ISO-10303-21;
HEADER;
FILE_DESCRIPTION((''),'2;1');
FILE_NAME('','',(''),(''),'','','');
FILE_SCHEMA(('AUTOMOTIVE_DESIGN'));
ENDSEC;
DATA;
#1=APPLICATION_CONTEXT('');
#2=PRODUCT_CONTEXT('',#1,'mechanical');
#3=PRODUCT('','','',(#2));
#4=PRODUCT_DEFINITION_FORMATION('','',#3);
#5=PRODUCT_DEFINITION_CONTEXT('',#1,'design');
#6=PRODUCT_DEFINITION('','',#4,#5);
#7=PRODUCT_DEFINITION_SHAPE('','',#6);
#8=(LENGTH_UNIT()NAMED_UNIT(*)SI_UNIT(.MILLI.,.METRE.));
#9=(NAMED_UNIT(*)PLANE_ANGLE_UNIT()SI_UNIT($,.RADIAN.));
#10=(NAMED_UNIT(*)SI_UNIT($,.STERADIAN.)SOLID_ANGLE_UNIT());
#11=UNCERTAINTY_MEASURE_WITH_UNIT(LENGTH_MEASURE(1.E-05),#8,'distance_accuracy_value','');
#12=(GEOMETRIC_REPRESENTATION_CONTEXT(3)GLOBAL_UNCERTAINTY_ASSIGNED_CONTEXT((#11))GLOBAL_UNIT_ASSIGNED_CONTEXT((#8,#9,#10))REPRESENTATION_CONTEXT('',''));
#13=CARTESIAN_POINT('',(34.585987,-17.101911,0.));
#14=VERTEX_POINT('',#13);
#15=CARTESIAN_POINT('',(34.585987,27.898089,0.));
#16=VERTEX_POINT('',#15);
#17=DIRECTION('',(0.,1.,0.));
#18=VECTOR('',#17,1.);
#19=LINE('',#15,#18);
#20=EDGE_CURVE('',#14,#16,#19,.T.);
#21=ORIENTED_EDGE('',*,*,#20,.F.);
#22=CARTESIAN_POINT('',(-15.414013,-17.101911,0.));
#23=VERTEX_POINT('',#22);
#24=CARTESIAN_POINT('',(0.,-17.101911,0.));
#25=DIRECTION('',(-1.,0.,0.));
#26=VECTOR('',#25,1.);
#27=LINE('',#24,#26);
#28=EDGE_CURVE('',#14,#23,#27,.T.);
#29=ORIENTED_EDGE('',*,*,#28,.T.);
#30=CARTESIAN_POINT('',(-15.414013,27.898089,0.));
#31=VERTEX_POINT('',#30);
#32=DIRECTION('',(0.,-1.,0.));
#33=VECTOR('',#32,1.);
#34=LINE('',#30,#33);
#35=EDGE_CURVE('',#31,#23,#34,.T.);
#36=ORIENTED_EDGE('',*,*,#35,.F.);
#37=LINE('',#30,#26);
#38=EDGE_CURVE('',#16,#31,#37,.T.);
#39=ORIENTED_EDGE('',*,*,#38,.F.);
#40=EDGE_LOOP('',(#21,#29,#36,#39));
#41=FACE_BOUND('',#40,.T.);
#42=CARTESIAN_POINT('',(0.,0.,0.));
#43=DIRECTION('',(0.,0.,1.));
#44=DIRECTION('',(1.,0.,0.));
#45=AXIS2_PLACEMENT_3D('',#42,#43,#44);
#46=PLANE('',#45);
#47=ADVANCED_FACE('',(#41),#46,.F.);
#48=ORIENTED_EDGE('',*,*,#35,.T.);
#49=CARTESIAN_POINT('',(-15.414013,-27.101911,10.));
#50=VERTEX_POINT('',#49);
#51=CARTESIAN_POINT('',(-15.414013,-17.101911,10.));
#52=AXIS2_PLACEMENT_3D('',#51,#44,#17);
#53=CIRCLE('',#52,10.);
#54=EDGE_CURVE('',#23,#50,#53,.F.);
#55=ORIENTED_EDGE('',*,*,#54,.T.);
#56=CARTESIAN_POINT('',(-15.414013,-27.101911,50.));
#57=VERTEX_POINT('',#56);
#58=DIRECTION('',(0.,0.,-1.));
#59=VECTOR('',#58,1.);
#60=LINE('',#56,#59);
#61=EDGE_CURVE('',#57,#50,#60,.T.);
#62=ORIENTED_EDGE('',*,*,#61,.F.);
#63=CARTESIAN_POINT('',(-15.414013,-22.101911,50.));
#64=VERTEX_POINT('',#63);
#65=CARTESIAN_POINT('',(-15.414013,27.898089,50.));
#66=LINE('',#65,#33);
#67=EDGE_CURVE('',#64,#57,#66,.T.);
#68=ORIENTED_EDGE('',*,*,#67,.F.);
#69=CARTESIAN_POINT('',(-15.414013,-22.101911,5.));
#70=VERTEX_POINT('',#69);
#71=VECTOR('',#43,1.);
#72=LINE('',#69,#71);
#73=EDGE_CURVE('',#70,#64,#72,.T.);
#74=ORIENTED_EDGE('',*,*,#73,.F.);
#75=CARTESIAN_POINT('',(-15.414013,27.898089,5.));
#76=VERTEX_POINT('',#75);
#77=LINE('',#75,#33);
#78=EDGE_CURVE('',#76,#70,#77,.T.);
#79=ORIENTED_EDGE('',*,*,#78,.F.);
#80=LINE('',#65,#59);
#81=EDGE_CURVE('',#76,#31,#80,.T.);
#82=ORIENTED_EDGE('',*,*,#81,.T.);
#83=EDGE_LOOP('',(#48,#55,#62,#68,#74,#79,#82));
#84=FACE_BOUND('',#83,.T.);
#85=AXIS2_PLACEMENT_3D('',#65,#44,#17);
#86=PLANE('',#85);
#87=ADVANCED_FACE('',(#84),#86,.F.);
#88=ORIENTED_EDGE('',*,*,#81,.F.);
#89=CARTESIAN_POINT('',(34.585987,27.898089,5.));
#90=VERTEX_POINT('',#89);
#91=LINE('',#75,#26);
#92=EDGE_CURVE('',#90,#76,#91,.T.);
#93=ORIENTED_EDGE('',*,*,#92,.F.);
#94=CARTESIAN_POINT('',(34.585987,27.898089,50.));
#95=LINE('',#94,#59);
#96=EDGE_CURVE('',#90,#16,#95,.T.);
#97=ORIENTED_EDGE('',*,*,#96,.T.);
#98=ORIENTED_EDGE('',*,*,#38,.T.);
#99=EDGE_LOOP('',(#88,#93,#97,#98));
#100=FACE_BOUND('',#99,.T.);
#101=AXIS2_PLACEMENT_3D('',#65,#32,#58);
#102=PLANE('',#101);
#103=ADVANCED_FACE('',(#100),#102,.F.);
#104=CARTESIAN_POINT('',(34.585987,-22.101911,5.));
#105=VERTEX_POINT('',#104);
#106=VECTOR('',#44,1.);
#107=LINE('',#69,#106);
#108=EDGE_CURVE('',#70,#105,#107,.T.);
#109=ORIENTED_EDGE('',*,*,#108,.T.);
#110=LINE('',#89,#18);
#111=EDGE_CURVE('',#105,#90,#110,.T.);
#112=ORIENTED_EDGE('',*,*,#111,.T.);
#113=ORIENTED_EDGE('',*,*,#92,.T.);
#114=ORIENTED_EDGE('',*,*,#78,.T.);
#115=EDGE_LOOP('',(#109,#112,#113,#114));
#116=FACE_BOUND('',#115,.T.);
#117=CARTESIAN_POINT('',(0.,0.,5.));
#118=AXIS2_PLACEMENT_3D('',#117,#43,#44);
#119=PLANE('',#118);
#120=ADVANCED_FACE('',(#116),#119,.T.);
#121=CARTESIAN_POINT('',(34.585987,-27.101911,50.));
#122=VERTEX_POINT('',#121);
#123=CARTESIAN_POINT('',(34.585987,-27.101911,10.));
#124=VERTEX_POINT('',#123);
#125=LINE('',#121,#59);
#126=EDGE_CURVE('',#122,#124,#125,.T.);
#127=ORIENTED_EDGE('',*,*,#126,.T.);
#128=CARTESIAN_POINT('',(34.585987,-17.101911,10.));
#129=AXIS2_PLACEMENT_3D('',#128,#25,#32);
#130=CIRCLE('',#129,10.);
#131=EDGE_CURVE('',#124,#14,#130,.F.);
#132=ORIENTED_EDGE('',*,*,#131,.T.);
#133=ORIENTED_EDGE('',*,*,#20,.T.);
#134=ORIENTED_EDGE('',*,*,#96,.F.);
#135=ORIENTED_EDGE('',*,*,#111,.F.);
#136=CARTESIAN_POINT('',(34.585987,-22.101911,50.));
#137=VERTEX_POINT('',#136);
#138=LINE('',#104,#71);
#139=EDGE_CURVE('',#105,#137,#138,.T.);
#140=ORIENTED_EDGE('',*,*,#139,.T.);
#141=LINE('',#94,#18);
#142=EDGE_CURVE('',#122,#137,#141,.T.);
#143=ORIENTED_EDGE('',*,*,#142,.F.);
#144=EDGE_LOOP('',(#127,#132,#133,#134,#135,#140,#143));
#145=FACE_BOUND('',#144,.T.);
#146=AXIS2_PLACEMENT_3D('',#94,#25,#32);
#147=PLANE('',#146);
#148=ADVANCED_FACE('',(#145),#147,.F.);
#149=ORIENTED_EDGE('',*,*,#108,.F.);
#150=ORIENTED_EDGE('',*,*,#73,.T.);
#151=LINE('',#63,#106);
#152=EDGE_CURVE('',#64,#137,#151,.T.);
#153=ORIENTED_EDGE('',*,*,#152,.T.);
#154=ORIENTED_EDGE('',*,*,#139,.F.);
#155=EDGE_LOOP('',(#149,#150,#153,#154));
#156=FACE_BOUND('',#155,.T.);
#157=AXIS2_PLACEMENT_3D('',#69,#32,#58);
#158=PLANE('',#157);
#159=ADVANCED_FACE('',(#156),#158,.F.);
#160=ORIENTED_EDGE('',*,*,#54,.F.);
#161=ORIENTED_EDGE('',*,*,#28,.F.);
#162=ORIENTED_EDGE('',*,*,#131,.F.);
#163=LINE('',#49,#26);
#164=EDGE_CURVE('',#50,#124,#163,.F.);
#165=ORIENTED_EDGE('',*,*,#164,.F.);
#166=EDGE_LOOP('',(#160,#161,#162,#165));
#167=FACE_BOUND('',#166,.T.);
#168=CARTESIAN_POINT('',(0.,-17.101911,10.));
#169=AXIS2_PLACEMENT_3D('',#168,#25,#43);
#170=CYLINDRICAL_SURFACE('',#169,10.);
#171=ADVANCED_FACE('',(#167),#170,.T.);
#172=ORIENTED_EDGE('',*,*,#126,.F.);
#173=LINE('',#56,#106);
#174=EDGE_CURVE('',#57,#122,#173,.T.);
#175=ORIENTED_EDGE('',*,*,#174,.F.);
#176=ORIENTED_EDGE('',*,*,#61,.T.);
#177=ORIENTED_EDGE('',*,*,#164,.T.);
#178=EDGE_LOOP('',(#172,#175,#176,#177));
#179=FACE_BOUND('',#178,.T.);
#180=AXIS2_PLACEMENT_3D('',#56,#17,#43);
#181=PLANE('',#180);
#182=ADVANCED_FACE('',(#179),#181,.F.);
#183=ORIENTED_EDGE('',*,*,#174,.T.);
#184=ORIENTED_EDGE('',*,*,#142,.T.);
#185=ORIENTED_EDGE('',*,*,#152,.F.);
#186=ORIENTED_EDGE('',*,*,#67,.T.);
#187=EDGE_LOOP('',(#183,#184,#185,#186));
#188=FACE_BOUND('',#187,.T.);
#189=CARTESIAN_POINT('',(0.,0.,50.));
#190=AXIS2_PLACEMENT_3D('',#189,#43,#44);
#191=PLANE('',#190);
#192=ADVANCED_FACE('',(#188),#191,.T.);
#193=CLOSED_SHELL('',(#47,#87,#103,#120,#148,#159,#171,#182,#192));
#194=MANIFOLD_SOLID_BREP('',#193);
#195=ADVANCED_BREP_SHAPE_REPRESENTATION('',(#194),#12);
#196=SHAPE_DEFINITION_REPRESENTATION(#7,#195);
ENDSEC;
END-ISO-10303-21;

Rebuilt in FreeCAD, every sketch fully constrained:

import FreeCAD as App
import Part
import Sketcher

V = App.Vector
Q = App.Units.Quantity


def edges_at(feature, points):
    """Names of the edges that pass closest to the given points."""
    edges = feature.Shape.Edges
    near = lambda p: min(range(len(edges)), key=lambda i: edges[i].distToShape(Part.Vertex(*p))[0])
    return sorted({f"Edge{near(p) + 1}" for p in points})


def add_polygon(sketch, points):
    """Adds a closed chain of lines whose ends are joined by coincident constraints."""
    first, n = sketch.GeometryCount, len(points)
    for a, b in zip(points, points[1:] + points[:1]):
        sketch.addGeometry(Part.LineSegment(App.Vector(*a, 0), App.Vector(*b, 0)), False)
    for i in range(n):
        sketch.addConstraint(Sketcher.Constraint("Coincident", first + i, 2, first + (i + 1) % n, 1))

doc = App.newDocument("Part")
body = doc.addObject("PartDesign::Body", "Body")

sketch1 = body.newObject("Sketcher::SketchObject", "Sketch")
sketch1.AttachmentSupport = (doc.getObject("XY_Plane"), [""])
sketch1.MapMode = "FlatFace"
add_polygon(sketch1, [(-15, 28), (-15, -27), (35, -27), (35, 28)])
sketch1.addConstraint([
    Sketcher.Constraint("Vertical", 0),
    Sketcher.Constraint("Horizontal", 1),
    Sketcher.Constraint("Vertical", 2),
    Sketcher.Constraint("Horizontal", 3),
    Sketcher.Constraint("DistanceX", 1, 1, 1, 2, Q("50 mm")),
    Sketcher.Constraint("DistanceY", 0, 2, 0, 1, Q("55 mm")),
    Sketcher.Constraint("DistanceY", 0, 2, -1, 1, Q("27.101911 mm")),
    Sketcher.Constraint("DistanceX", 0, 2, -1, 1, Q("15.414013 mm")),
])
pad1 = body.newObject("PartDesign::Pad", "Pad")
pad1.Profile = sketch1
pad1.Length = 50

sketch2 = body.newObject("Sketcher::SketchObject", "Sketch001")
sketch2.AttachmentSupport = (doc.getObject("XY_Plane"), [""])
sketch2.MapMode = "FlatFace"
sketch2.AttachmentOffset = App.Placement(V(0, 0, 50), App.Rotation())
add_polygon(sketch2, [(-15, 28), (-15, -22), (35, -22), (35, 28)])
sketch2.addConstraint([
    Sketcher.Constraint("Vertical", 0),
    Sketcher.Constraint("Horizontal", 1),
    Sketcher.Constraint("Vertical", 2),
    Sketcher.Constraint("Horizontal", 3),
    Sketcher.Constraint("Equal", 3, 0),
    Sketcher.Constraint("DistanceX", 1, 1, 1, 2, Q("50 mm")),
    Sketcher.Constraint("DistanceY", 0, 2, -1, 1, Q("22.101911 mm")),
    Sketcher.Constraint("DistanceX", 0, 2, -1, 1, Q("15.414013 mm")),
])
pocket1 = body.newObject("PartDesign::Pocket", "Pocket")
pocket1.Profile = sketch2
pocket1.Length = 45
doc.recompute()

fillet = body.newObject("PartDesign::Fillet", "Fillet")
fillet.Base = (pocket1, edges_at(pocket1, [(9.586, -27.102, 0)]))
fillet.Radius = 10

doc.recompute()
